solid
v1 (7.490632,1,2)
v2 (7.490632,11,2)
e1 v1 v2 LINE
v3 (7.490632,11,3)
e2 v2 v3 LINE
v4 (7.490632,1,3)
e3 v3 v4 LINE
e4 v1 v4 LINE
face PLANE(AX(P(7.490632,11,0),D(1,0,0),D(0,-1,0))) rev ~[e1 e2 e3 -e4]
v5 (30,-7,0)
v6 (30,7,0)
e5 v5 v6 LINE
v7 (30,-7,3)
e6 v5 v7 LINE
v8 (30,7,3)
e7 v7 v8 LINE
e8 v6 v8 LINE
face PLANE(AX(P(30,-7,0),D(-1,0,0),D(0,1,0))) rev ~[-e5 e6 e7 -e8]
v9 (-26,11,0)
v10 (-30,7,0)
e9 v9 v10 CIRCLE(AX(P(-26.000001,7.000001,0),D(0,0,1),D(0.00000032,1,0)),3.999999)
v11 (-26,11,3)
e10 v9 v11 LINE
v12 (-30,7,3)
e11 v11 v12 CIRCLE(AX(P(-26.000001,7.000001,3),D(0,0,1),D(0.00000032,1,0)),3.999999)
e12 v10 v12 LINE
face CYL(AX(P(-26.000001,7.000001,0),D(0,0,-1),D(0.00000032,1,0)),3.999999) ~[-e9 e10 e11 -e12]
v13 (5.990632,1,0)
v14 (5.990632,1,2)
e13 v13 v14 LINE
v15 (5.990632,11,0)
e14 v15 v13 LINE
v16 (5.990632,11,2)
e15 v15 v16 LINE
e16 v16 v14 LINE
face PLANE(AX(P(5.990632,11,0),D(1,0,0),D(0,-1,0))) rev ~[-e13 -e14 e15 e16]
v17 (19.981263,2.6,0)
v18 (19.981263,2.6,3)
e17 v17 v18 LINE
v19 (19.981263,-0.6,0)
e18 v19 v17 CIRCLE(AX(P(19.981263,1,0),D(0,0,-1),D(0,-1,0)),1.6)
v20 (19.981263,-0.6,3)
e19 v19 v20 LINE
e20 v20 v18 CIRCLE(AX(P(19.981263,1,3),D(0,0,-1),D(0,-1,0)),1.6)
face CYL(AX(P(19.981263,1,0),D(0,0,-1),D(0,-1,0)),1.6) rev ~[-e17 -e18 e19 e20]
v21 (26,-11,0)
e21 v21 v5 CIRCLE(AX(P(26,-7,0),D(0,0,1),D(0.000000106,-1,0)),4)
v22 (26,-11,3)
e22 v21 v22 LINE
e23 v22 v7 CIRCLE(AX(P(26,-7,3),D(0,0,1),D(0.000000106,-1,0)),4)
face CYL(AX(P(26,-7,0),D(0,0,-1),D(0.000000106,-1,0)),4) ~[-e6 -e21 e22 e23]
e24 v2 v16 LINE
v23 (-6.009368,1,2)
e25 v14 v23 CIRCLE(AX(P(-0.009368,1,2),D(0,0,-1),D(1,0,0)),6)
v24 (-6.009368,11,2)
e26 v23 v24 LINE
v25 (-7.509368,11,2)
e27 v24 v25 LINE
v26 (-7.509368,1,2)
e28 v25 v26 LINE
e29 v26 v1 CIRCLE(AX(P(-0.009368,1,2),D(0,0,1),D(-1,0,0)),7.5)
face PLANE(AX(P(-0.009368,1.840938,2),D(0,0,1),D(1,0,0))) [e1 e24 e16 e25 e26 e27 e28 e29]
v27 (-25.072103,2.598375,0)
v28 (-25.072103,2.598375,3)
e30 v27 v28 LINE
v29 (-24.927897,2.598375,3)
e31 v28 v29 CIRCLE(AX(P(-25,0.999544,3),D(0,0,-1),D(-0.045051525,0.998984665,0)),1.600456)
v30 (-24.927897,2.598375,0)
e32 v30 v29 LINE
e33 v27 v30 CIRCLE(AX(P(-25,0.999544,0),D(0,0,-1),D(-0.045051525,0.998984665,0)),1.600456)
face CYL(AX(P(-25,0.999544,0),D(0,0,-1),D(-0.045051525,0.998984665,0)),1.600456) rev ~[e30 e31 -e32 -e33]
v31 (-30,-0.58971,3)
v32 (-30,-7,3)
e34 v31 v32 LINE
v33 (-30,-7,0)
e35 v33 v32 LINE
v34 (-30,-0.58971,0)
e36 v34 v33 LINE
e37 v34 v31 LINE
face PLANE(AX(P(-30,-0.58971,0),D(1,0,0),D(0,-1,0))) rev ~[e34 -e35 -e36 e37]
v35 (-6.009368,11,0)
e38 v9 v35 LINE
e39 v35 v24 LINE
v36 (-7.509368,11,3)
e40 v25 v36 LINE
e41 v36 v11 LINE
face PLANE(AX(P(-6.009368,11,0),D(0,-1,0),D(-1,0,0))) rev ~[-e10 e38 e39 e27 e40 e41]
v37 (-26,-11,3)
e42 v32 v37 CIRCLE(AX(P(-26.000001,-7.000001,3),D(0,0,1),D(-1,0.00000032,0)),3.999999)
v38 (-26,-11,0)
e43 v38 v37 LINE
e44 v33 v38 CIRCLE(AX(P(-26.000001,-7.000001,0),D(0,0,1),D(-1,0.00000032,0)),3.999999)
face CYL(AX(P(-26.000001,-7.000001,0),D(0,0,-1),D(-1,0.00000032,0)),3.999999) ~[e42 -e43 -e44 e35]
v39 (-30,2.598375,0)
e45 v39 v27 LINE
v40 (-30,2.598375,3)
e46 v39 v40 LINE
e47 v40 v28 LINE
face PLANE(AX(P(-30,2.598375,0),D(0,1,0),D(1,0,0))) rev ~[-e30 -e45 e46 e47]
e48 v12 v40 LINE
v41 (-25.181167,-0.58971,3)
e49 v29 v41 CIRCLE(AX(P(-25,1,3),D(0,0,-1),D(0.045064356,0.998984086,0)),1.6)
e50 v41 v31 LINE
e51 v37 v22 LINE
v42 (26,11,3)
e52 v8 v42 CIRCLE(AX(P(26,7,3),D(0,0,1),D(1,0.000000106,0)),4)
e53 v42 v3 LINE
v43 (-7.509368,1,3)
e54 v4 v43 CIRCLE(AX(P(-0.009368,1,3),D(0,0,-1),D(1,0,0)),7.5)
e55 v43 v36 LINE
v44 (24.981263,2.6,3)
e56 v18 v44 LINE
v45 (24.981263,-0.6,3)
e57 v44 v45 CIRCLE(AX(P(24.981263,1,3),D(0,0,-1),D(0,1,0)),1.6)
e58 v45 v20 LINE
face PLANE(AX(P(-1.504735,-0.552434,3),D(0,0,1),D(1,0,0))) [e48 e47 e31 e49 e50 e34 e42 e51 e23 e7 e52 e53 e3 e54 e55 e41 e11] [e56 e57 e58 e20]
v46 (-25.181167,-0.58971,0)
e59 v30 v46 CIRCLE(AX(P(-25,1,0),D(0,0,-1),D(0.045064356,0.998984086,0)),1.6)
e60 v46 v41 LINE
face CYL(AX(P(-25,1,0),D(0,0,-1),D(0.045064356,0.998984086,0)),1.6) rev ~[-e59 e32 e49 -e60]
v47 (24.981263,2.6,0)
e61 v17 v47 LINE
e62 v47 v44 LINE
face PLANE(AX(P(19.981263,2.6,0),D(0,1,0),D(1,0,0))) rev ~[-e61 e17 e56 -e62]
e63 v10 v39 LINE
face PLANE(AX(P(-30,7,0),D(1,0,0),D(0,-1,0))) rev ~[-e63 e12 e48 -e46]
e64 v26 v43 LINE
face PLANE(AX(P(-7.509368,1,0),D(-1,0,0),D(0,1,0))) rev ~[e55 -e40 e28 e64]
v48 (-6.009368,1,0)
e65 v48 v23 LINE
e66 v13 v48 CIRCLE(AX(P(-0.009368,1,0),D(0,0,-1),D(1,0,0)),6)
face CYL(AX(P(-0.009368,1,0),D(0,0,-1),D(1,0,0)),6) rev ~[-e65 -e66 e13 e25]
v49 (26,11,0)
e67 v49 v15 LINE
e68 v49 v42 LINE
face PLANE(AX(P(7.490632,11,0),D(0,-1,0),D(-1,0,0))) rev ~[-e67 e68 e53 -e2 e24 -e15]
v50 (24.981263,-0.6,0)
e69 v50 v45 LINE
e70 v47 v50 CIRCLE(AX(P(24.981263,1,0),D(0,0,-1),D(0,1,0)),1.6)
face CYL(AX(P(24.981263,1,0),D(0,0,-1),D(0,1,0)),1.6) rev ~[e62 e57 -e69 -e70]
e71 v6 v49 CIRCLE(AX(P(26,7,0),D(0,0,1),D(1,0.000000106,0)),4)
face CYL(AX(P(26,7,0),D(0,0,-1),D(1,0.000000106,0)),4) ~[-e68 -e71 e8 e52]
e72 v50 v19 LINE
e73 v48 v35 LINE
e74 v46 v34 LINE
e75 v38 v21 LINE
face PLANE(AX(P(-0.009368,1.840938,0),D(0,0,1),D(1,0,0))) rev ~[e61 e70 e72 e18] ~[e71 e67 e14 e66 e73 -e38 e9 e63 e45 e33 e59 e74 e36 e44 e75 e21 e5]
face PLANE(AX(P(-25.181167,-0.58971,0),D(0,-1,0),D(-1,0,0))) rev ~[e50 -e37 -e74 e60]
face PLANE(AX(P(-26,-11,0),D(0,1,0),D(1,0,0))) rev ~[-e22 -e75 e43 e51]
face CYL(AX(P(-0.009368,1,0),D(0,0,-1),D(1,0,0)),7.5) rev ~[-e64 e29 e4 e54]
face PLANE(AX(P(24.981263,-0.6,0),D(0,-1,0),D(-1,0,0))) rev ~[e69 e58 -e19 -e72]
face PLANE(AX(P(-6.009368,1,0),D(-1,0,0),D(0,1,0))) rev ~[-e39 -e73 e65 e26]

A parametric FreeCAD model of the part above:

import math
import FreeCAD as App
import Part
import Sketcher
Q = App.Units.Quantity

doc = App.newDocument("Part")
params = doc.addObject("Spreadsheet::Sheet", "Params")
for row, (alias, value) in enumerate([
    ("sketch1_radius", "4 mm"),
    ("sketch1_radius2", "7.5 mm"),
    ("sketch1_radius3", "1.6 mm"),
    ("sketch1_width", "52 mm"),
    ("sketch1_width2", "5 mm"),
    ("pad1_length", "3 mm"),
    ("sketch2_radius", "6 mm"),
    ("sketch2_radius2", "7.5 mm"),
    ("sketch2_height", "10 mm"),
    ("pad2_length", "2 mm"),
], start=1):
    params.set(f"A{row}", alias)
    params.set(f"B{row}", "=" + value)
    params.setAlias(f"B{row}", alias)

body = doc.addObject("PartDesign::Body", "Body")

sketch1 = doc.addObject("Sketcher::SketchObject", "Sketch")
body.addObject(sketch1)
sketch1.AttachmentSupport = (doc.XY_Plane, [""])
sketch1.MapMode = "FlatFace"
sketch1.addGeometry([
    Part.LineSegment(App.Vector(-26, -11, 0), App.Vector(26, -11, 0)),
    Part.ArcOfCircle(Part.Circle(App.Vector(26, -7, 0), App.Vector(0, 0, 1), 4), math.radians(-90), math.radians(0)),
    Part.LineSegment(App.Vector(30, -7, 0), App.Vector(30, 7, 0)),
    Part.ArcOfCircle(Part.Circle(App.Vector(26, 7, 0), App.Vector(0, 0, 1), 4), math.radians(0), math.radians(90)),
    Part.LineSegment(App.Vector(26, 11, 0), App.Vector(7.49, 11, 0)),
    Part.LineSegment(App.Vector(7.49, 11, 0), App.Vector(7.49, 1, 0)),
    Part.ArcOfCircle(Part.Circle(App.Vector(-0.01, 1, 0), App.Vector(0, 0, 1), 7.5), math.radians(180), math.radians(360)),
    Part.LineSegment(App.Vector(-7.51, 1, 0), App.Vector(-7.51, 11, 0)),
    Part.LineSegment(App.Vector(-7.51, 11, 0), App.Vector(-26, 11, 0)),
    Part.ArcOfCircle(Part.Circle(App.Vector(-26, 7, 0), App.Vector(0, 0, 1), 4), math.radians(90), math.radians(180)),
    Part.LineSegment(App.Vector(-30, 7, 0), App.Vector(-30, 2.6, 0)),
    Part.LineSegment(App.Vector(-30, 2.6, 0), App.Vector(-25.07, 2.6, 0)),
    Part.ArcOfCircle(Part.Circle(App.Vector(-25, 1, 0), App.Vector(0, 0, 1), 1.6), math.radians(87.42), math.radians(92.58)),
    Part.ArcOfCircle(Part.Circle(App.Vector(-25, 1, 0), App.Vector(0, 0, 1), 1.6), math.radians(-97), math.radians(87)),
    Part.LineSegment(App.Vector(-25.18, -0.59, 0), App.Vector(-30, -0.59, 0)),
    Part.LineSegment(App.Vector(-30, -0.59, 0), App.Vector(-30, -7, 0)),
    Part.ArcOfCircle(Part.Circle(App.Vector(-26, -7, 0), App.Vector(0, 0, 1), 4), math.radians(180), math.radians(270)),
    Part.LineSegment(App.Vector(19.98, 2.6, 0), App.Vector(24.98, 2.6, 0)),
    Part.ArcOfCircle(Part.Circle(App.Vector(24.98, 1, 0), App.Vector(0, 0, 1), 1.6), math.radians(-90), math.radians(90)),
    Part.LineSegment(App.Vector(24.98, -0.6, 0), App.Vector(19.98, -0.6, 0)),
    Part.ArcOfCircle(Part.Circle(App.Vector(19.98, 1, 0), App.Vector(0, 0, 1), 1.6), math.radians(90), math.radians(270)),
], False)
sketch1.addConstraint([
    Sketcher.Constraint("Tangent", 0, 2, 1, 1),
    Sketcher.Constraint("Tangent", 1, 2, 2, 1),
    Sketcher.Constraint("Tangent", 2, 2, 3, 1),
    Sketcher.Constraint("Tangent", 3, 2, 4, 1),
    Sketcher.Constraint("Coincident", 4, 2, 5, 1),
    Sketcher.Constraint("Tangent", 5, 2, 6, 2),
    Sketcher.Constraint("Tangent", 6, 1, 7, 1),
    Sketcher.Constraint("Coincident", 7, 2, 8, 1),
    Sketcher.Constraint("Tangent", 8, 2, 9, 1),
    Sketcher.Constraint("Tangent", 9, 2, 10, 1),
    Sketcher.Constraint("Coincident", 10, 2, 11, 1),
    Sketcher.Constraint("Coincident", 11, 2, 12, 2),
    Sketcher.Constraint("Coincident", 12, 1, 13, 2),
    Sketcher.Constraint("Coincident", 13, 1, 14, 1),
    Sketcher.Constraint("Coincident", 14, 2, 15, 1),
    Sketcher.Constraint("Tangent", 15, 2, 16, 1),
    Sketcher.Constraint("Tangent", 16, 2, 0, 1),
    Sketcher.Constraint("Tangent", 17, 2, 18, 2),
    Sketcher.Constraint("Tangent", 18, 1, 19, 1),
    Sketcher.Constraint("Tangent", 19, 2, 20, 2),
    Sketcher.Constraint("Tangent", 20, 1, 17, 1),
    Sketcher.Constraint("Horizontal", 0),
    Sketcher.Constraint("Vertical", 2),
    Sketcher.Constraint("Horizontal", 4),
    Sketcher.Constraint("Vertical", 5),
    Sketcher.Constraint("Vertical", 7),
    Sketcher.Constraint("Horizontal", 8),
    Sketcher.Constraint("Vertical", 10),
    Sketcher.Constraint("Horizontal", 11),
    Sketcher.Constraint("Horizontal", 14),
    Sketcher.Constraint("Vertical", 15),
    Sketcher.Constraint("Horizontal", 17),
    Sketcher.Constraint("Horizontal", 19),
    Sketcher.Constraint("Equal", 1, 3),
    Sketcher.Constraint("Equal", 3, 9),
    Sketcher.Constraint("Equal", 9, 16),
    Sketcher.Constraint("Equal", 13, 18),
    Sketcher.Constraint("Symmetric", 1, 3, 9, 3, -1, 1),
    Sketcher.Constraint("Symmetric", 3, 3, 16, 3, -1, 1),
    Sketcher.Constraint("Horizontal", 6, 3, 13, 3),
    Sketcher.Constraint("Horizontal", 13, 3, 18, 3),
    Sketcher.Constraint("Horizontal", 11, 2, 12, 1),
    Sketcher.Constraint("Vertical", 12, 3, 13, 3),
    Sketcher.Constraint("Radius", 1, Q("4 mm")),
    Sketcher.Constraint("Radius", 6, Q("7.5 mm")),
    Sketcher.Constraint("Radius", 13, Q("1.6 mm")),
    Sketcher.Constraint("DistanceX", 0, 1, 0, 2, Q("52 mm")),
    Sketcher.Constraint("DistanceX", 17, 1, 17, 2, Q("5 mm")),
    Sketcher.Constraint("DistanceY", 2, 1, 2, 2, Q("14 mm")),
    Sketcher.Constraint("DistanceY", 5, 2, 5, 1, Q("10 mm")),
    Sketcher.Constraint("DistanceX", 12, 3, -1, 1, Q("25 mm")),
    Sketcher.Constraint("Radius", 12, Q("1.600456 mm")),
    Sketcher.Constraint("DistanceX", 4, 2, 4, 1, Q("18.509368 mm")),
    Sketcher.Constraint("DistanceY", 15, 2, 15, 1, Q("6.41029 mm")),
    Sketcher.Constraint("DistanceX", 9, 3, 11, 2, Q("0.927898 mm")),
    Sketcher.Constraint("DistanceX", 6, 3, 18, 3, Q("24.990631 mm")),
])
sketch1.setExpression("Constraints[43]", "Params.sketch1_radius")
sketch1.setExpression("Constraints[44]", "Params.sketch1_radius2")
sketch1.setExpression("Constraints[45]", "Params.sketch1_radius3")
sketch1.setExpression("Constraints[46]", "Params.sketch1_width")
sketch1.setExpression("Constraints[47]", "Params.sketch1_width2")
pad1 = doc.addObject("PartDesign::Pad", "Pad")
body.addObject(pad1)
pad1.Profile = sketch1
pad1.setExpression("Length", "Params.pad1_length")

sketch2 = doc.addObject("Sketcher::SketchObject", "Sketch001")
body.addObject(sketch2)
sketch2.AttachmentSupport = (doc.XY_Plane, [""])
sketch2.MapMode = "FlatFace"
sketch2.addGeometry([
    Part.LineSegment(App.Vector(7.5, 1, 0), App.Vector(7.5, 11, 0)),
    Part.LineSegment(App.Vector(7.5, 11, 0), App.Vector(6, 11, 0)),
    Part.LineSegment(App.Vector(6, 11, 0), App.Vector(6, 1, 0)),
    Part.ArcOfCircle(Part.Circle(App.Vector(0, 1, 0), App.Vector(0, 0, 1), 6), math.radians(180), math.radians(360)),
    Part.LineSegment(App.Vector(-6, 1, 0), App.Vector(-6, 11, 0)),
    Part.LineSegment(App.Vector(-6, 11, 0), App.Vector(-7.5, 11, 0)),
    Part.LineSegment(App.Vector(-7.5, 11, 0), App.Vector(-7.5, 1, 0)),
    Part.ArcOfCircle(Part.Circle(App.Vector(0, 1, 0), App.Vector(0, 0, 1), 7.5), math.radians(180), math.radians(360)),
], False)
sketch2.addConstraint([
    Sketcher.Constraint("Coincident", 0, 2, 1, 1),
    Sketcher.Constraint("Coincident", 1, 2, 2, 1),
    Sketcher.Constraint("Tangent", 2, 2, 3, 2),
    Sketcher.Constraint("Tangent", 3, 1, 4, 1),
    Sketcher.Constraint("Coincident", 4, 2, 5, 1),
    Sketcher.Constraint("Coincident", 5, 2, 6, 1),
    Sketcher.Constraint("Tangent", 6, 2, 7, 1),
    Sketcher.Constraint("Tangent", 7, 2, 0, 1),
    Sketcher.Constraint("Vertical", 0),
    Sketcher.Constraint("Horizontal", 1),
    Sketcher.Constraint("Vertical", 2),
    Sketcher.Constraint("Vertical", 4),
    Sketcher.Constraint("Horizontal", 5),
    Sketcher.Constraint("Vertical", 6),
    Sketcher.Constraint("Coincident", 7, 3, 3, 3),
    Sketcher.Constraint("Horizontal", 1, 2, 4, 2),
    Sketcher.Constraint("Radius", 3, Q("6 mm")),
    Sketcher.Constraint("Radius", 7, Q("7.5 mm")),
    Sketcher.Constraint("DistanceY", 0, 1, 0, 2, Q("10 mm")),
    Sketcher.Constraint("DistanceY", -1, 1, 3, 3, Q("1 mm")),
    Sketcher.Constraint("DistanceX", -1, 1, 0, 2, Q("7.490632 mm")),
])
sketch2.setExpression("Constraints[16]", "Params.sketch2_radius")
sketch2.setExpression("Constraints[17]", "Params.sketch2_radius2")
sketch2.setExpression("Constraints[18]", "Params.sketch2_height")
pad2 = doc.addObject("PartDesign::Pad", "Pad001")
body.addObject(pad2)
pad2.Profile = sketch2
pad2.setExpression("Length", "Params.pad2_length")

doc.recompute()
